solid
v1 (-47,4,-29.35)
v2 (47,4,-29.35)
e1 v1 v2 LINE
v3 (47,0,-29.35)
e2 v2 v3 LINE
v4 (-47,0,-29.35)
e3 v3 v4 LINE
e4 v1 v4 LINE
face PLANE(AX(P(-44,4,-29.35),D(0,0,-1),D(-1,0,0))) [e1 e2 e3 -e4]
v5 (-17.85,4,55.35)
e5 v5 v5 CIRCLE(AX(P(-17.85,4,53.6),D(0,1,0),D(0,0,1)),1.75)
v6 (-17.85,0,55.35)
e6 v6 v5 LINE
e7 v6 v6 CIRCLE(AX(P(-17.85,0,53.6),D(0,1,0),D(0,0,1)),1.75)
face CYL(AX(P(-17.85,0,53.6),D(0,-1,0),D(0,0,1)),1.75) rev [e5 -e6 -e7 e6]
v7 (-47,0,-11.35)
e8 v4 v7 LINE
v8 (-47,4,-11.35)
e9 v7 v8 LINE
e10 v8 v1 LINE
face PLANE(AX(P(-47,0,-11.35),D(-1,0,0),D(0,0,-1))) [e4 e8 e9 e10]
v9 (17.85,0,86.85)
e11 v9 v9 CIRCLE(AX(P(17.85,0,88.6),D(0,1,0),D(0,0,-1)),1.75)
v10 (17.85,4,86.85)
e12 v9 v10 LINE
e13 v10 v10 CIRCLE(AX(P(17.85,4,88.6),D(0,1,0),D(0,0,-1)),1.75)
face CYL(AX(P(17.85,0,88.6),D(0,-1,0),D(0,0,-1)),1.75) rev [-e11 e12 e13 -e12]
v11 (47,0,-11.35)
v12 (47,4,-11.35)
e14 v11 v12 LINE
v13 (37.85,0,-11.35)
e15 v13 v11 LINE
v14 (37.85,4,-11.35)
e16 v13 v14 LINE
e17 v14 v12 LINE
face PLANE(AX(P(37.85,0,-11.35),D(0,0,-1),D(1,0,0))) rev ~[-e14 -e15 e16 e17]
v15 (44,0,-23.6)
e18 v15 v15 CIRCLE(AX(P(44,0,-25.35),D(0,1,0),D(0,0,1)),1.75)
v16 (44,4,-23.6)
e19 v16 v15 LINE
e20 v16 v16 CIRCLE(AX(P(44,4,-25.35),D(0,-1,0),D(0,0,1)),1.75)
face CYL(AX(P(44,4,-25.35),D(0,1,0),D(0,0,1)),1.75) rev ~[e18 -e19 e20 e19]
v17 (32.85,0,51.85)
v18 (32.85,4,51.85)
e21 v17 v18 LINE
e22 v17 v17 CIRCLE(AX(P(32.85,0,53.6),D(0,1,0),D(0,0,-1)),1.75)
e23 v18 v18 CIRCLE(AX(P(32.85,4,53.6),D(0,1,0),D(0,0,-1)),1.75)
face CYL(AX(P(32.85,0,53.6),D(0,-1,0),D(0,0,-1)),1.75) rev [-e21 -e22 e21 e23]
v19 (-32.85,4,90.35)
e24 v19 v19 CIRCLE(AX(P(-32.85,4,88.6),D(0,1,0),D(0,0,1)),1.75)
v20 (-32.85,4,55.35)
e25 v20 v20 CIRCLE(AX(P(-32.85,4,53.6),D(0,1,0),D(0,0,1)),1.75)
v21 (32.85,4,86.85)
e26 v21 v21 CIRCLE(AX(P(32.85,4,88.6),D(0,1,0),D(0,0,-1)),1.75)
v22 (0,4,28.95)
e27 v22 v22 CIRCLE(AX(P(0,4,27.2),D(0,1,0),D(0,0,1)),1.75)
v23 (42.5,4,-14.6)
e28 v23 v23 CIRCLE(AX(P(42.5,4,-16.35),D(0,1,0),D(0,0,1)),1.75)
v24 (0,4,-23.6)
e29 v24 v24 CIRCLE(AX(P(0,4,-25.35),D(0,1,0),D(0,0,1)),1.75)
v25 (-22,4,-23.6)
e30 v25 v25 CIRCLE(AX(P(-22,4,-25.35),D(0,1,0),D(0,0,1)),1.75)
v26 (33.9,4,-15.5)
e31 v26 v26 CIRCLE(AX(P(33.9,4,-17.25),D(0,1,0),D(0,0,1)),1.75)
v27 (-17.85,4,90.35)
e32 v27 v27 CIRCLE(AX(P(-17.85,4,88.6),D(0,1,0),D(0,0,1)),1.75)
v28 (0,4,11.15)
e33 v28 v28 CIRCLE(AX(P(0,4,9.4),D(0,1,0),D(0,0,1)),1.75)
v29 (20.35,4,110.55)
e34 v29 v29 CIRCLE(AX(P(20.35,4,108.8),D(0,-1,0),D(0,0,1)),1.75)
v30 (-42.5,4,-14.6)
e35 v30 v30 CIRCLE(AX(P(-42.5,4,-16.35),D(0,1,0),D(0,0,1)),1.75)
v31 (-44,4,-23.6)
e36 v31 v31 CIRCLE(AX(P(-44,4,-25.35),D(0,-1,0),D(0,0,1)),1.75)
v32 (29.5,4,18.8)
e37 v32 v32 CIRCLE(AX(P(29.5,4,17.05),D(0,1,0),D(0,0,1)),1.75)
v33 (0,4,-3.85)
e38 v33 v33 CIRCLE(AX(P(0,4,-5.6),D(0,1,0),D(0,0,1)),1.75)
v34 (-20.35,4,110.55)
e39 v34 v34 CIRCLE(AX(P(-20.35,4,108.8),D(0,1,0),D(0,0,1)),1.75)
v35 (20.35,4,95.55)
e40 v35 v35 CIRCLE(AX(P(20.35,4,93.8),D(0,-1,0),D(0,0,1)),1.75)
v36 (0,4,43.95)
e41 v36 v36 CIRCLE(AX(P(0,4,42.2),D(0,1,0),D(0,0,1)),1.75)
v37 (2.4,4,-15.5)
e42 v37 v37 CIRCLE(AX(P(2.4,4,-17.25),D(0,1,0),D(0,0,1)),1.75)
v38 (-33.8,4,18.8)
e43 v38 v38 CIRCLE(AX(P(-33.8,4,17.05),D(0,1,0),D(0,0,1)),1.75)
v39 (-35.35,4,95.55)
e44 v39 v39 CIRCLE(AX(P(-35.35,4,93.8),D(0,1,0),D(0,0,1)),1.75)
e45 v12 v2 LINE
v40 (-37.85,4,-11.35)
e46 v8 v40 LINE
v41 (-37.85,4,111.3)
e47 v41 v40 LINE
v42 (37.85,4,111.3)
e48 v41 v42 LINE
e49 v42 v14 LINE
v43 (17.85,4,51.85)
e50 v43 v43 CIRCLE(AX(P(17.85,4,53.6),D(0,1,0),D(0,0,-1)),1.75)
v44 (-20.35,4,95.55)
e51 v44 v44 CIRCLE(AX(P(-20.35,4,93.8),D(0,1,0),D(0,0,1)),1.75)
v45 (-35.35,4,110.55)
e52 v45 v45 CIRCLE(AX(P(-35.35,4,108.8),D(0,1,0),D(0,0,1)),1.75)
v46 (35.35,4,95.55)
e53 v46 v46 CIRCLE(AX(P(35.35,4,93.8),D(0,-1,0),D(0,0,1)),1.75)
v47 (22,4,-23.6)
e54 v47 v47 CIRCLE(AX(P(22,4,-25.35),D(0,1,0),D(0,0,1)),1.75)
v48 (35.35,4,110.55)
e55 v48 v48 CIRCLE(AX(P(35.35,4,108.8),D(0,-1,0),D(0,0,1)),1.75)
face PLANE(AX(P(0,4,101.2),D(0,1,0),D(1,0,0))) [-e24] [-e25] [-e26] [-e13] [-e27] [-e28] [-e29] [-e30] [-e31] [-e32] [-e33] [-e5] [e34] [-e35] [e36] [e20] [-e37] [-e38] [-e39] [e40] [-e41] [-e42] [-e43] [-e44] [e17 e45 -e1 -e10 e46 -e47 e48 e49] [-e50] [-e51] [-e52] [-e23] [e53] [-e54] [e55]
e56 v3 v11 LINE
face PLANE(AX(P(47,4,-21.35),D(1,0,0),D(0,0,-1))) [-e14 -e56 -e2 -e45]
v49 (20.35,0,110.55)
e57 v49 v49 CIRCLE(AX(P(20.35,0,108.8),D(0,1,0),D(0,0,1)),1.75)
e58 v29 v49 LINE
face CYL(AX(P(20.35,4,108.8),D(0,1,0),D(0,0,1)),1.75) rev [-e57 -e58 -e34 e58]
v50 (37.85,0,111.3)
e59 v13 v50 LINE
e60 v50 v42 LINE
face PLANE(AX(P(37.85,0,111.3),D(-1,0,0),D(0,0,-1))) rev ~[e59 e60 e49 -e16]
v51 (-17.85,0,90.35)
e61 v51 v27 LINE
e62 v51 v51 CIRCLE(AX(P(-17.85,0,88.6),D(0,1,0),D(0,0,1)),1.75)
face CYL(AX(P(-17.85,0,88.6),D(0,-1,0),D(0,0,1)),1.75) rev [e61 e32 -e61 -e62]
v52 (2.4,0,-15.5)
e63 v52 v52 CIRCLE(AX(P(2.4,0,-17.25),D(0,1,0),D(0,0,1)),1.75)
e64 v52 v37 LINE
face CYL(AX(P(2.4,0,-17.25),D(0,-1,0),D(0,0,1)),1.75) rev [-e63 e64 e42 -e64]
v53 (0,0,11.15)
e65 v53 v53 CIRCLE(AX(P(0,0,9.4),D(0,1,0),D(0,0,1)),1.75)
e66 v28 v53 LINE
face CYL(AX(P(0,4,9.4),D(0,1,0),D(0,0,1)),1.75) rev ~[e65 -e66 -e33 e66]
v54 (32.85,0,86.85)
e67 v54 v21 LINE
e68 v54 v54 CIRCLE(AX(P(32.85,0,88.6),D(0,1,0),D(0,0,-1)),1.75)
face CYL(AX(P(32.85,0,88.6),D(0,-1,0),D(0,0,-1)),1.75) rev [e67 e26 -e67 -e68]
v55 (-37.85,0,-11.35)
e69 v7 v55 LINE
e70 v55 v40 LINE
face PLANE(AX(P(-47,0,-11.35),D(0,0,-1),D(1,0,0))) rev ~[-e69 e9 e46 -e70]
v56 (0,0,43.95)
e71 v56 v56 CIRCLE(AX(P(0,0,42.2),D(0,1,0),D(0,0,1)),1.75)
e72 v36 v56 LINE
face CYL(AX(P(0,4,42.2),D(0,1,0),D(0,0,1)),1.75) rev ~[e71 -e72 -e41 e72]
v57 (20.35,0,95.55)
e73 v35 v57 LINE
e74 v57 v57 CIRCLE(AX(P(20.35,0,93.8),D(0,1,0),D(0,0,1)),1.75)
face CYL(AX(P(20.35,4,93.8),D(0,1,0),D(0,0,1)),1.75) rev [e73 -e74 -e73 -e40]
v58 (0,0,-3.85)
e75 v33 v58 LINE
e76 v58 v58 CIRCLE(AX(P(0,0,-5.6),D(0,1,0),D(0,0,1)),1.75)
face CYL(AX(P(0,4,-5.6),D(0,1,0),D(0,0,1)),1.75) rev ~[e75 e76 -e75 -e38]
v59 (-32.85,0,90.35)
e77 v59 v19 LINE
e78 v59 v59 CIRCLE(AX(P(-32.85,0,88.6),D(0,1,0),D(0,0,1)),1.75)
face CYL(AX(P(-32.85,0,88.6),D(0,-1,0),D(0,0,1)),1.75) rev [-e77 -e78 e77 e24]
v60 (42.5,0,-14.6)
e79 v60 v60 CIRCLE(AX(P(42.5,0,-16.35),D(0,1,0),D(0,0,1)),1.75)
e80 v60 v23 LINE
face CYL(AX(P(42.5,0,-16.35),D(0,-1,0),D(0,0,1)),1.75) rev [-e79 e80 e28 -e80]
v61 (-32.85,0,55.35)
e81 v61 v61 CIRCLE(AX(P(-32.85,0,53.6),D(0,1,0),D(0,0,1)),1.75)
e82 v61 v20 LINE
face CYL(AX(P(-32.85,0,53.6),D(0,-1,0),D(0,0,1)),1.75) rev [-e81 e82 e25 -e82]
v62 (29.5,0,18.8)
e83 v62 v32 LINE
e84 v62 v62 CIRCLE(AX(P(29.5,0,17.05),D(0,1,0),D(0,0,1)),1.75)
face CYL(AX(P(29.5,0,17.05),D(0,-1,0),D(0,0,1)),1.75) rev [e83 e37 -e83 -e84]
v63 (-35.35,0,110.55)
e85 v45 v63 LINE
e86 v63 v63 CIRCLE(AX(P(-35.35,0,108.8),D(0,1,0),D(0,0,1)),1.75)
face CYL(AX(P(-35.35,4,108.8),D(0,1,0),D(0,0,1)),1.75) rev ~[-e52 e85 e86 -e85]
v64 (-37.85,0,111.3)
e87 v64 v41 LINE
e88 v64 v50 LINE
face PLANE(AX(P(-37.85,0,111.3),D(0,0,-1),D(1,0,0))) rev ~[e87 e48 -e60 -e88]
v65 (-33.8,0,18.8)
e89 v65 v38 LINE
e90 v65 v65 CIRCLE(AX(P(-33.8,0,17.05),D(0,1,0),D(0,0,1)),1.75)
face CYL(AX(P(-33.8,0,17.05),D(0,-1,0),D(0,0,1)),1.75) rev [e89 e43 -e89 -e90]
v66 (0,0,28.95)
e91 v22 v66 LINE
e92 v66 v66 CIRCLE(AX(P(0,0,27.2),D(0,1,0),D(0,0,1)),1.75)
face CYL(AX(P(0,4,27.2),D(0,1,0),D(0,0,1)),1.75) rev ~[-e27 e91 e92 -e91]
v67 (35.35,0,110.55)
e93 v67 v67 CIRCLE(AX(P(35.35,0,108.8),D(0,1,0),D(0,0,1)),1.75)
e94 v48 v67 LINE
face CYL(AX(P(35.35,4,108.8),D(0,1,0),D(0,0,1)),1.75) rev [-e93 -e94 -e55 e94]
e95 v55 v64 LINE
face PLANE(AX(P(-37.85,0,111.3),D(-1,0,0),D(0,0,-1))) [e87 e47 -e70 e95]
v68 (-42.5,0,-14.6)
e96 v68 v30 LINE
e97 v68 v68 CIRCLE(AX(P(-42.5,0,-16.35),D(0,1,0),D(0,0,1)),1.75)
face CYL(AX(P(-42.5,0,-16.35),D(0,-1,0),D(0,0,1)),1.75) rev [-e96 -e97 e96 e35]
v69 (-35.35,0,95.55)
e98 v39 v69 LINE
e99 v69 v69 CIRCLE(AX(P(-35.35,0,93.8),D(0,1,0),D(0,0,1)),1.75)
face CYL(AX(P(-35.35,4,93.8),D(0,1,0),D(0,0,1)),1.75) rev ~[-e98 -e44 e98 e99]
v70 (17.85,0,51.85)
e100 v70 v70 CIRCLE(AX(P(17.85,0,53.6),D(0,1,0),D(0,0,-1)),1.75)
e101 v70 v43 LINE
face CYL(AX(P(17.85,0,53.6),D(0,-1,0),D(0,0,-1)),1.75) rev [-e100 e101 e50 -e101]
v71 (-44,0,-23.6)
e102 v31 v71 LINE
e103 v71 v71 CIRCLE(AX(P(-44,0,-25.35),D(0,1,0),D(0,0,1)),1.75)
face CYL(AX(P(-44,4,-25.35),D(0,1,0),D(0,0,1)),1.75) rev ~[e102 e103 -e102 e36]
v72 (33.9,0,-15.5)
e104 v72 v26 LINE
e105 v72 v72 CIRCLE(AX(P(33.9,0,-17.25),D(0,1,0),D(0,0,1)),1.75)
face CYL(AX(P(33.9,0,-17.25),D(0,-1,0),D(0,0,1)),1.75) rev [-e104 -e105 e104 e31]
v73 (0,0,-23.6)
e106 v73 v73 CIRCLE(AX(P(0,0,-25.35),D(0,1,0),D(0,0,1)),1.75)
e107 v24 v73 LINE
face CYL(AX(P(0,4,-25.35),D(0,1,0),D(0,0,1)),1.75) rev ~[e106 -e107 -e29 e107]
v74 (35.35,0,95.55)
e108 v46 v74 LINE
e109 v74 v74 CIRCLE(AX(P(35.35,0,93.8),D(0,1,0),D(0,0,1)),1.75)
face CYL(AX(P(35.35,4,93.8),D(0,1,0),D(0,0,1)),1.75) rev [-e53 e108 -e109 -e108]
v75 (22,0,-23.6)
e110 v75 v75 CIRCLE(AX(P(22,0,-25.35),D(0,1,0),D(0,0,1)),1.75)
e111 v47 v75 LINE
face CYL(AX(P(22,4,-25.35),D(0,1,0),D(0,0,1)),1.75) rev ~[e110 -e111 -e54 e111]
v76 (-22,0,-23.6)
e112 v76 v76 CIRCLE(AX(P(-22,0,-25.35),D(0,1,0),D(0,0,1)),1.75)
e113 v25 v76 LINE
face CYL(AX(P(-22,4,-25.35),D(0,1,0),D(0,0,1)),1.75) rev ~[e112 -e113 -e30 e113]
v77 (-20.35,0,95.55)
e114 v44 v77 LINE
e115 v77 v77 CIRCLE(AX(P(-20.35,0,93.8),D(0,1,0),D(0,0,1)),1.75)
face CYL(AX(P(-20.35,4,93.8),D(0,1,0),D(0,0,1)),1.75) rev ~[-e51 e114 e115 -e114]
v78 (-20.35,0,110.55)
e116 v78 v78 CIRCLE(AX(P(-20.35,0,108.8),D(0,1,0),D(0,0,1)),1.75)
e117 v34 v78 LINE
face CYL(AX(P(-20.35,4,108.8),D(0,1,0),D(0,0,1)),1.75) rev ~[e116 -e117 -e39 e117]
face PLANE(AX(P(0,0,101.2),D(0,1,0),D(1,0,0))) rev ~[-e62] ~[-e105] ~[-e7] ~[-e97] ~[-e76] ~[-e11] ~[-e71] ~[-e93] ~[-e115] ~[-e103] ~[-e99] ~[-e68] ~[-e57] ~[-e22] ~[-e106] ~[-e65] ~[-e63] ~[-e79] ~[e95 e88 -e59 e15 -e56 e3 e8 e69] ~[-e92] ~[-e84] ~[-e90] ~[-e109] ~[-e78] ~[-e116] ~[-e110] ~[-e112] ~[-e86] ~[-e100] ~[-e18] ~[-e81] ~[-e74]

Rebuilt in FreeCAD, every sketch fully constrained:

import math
import FreeCAD as App
import Part
import Sketcher
from FreeCAD import Vector
Q = App.Units.Quantity

doc = App.newDocument("Part")
body = doc.addObject("PartDesign::Body", "Body")

sketch1 = body.newObject("Sketcher::SketchObject", "Sketch")
sketch1.AttachmentSupport = (doc.getObject("XZ_Plane"), [""])
sketch1.MapMode = "FlatFace"
sketch1.addGeometry(Part.LineSegment(Vector(-37.9, -21.4, 0), Vector(-37.9, 21.4, 0)), False)
sketch1.addGeometry(Part.LineSegment(Vector(-37.9, 21.4, 0), Vector(37.9, 21.4, 0)), False)
sketch1.addGeometry(Part.LineSegment(Vector(37.9, 21.4, 0), Vector(37.9, -21.4, 0)), False)
sketch1.addGeometry(Part.LineSegment(Vector(37.9, -21.4, 0), Vector(-37.9, -21.4, 0)), False)
sketch1.addGeometry(Part.Circle(Vector(-33.8, 17.1, 0), Vector(0, 0, 1), 1.8), False)
sketch1.addGeometry(Part.Circle(Vector(29.5, 17.1, 0), Vector(0, 0, 1), 1.8), False)
sketch1.addGeometry(Part.Circle(Vector(2.4, -17.2, 0), Vector(0, 0, 1), 1.8), False)
sketch1.addGeometry(Part.Circle(Vector(33.9, -17.2, 0), Vector(0, 0, 1), 1.8), False)
sketch1.addConstraint(Sketcher.Constraint("Coincident", 0, 2, 1, 1))
sketch1.addConstraint(Sketcher.Constraint("Coincident", 1, 2, 2, 1))
sketch1.addConstraint(Sketcher.Constraint("Coincident", 2, 2, 3, 1))
sketch1.addConstraint(Sketcher.Constraint("Coincident", 3, 2, 0, 1))
sketch1.addConstraint(Sketcher.Constraint("Vertical", 0))
sketch1.addConstraint(Sketcher.Constraint("Horizontal", 1))
sketch1.addConstraint(Sketcher.Constraint("Vertical", 2))
sketch1.addConstraint(Sketcher.Constraint("Horizontal", 3))
sketch1.addConstraint(Sketcher.Constraint("Equal", 4, 5))
sketch1.addConstraint(Sketcher.Constraint("Equal", 5, 6))
sketch1.addConstraint(Sketcher.Constraint("Equal", 6, 7))
sketch1.addConstraint(Sketcher.Constraint("Symmetric", 0, 2, 2, 2, -1, 1))
sketch1.addConstraint(Sketcher.Constraint("Horizontal", 4, 3, 5, 3))
sketch1.addConstraint(Sketcher.Constraint("Horizontal", 6, 3, 7, 3))
sketch1.addConstraint(Sketcher.Constraint("Diameter", 4, Q("3.5 mm")))
sketch1.addConstraint(Sketcher.Constraint("DistanceX", 1, 1, 1, 2, Q("75.7 mm")))
sketch1.addConstraint(Sketcher.Constraint("DistanceY", 0, 1, 0, 2, Q("42.7 mm")))
sketch1.addConstraint(Sketcher.Constraint("DistanceX", 4, 3, -1, 1, Q("33.8 mm")))
sketch1.addConstraint(Sketcher.Constraint("DistanceX", -1, 1, 5, 3, Q("29.5 mm")))
sketch1.addConstraint(Sketcher.Constraint("DistanceX", -1, 1, 6, 3, Q("2.4 mm")))
sketch1.addConstraint(Sketcher.Constraint("DistanceX", -1, 1, 7, 3, Q("33.9 mm")))
sketch1.addConstraint(Sketcher.Constraint("DistanceY", 6, 3, 5, 3, Q("34.3 mm")))
sketch1.addConstraint(Sketcher.Constraint("DistanceY", 4, 3, 0, 2, Q("4.3 mm")))
pad1 = body.newObject("PartDesign::Pad", "Pad")
pad1.Profile = sketch1
pad1.Length = 4
pad1.Reversed = True

sketch2 = body.newObject("Sketcher::SketchObject", "Sketch001")
sketch2.AttachmentSupport = (doc.getObject("XZ_Plane"), [""])
sketch2.MapMode = "FlatFace"
sketch2.AttachmentOffset = App.Placement(Vector(0, 0, -4), App.Rotation())
sketch2.addGeometry(Part.LineSegment(Vector(-37.9, 21.4, 0), Vector(-37.9, 51.1, 0)), False)
sketch2.addGeometry(Part.LineSegment(Vector(-37.9, 51.1, 0), Vector(37.9, 51.1, 0)), False)
sketch2.addGeometry(Part.LineSegment(Vector(37.9, 51.1, 0), Vector(37.9, 21.4, 0)), False)
sketch2.addGeometry(Part.LineSegment(Vector(37.9, 21.4, 0), Vector(-37.9, 21.4, 0)), False)
sketch2.addGeometry(Part.Circle(Vector(0, 42.2, 0), Vector(0, 0, 1), 1.8), False)
sketch2.addGeometry(Part.Circle(Vector(0, 27.2, 0), Vector(0, 0, 1), 1.8), False)
sketch2.addConstraint(Sketcher.Constraint("Coincident", 0, 2, 1, 1))
sketch2.addConstraint(Sketcher.Constraint("Coincident", 1, 2, 2, 1))
sketch2.addConstraint(Sketcher.Constraint("Coincident", 2, 2, 3, 1))
sketch2.addConstraint(Sketcher.Constraint("Coincident", 3, 2, 0, 1))
sketch2.addConstraint(Sketcher.Constraint("Vertical", 0))
sketch2.addConstraint(Sketcher.Constraint("Horizontal", 1))
sketch2.addConstraint(Sketcher.Constraint("Vertical", 2))
sketch2.addConstraint(Sketcher.Constraint("Horizontal", 3))
sketch2.addConstraint(Sketcher.Constraint("Equal", 4, 5))
sketch2.addConstraint(Sketcher.Constraint("PointOnObject", 4, 3, -2))
sketch2.addConstraint(Sketcher.Constraint("PointOnObject", 5, 3, -2))
sketch2.addConstraint(Sketcher.Constraint("Diameter", 4, Q("3.5 mm")))
sketch2.addConstraint(Sketcher.Constraint("DistanceX", 1, 1, 1, 2, Q("75.7 mm")))
sketch2.addConstraint(Sketcher.Constraint("DistanceY", 5, 3, 4, 3, Q("15 mm")))
sketch2.addConstraint(Sketcher.Constraint("DistanceY", 0, 1, 0, 2, Q("29.75 mm")))
sketch2.addConstraint(Sketcher.Constraint("DistanceY", -1, 1, 4, 3, Q("42.2 mm")))
sketch2.addConstraint(Sketcher.Constraint("DistanceY", -1, 1, 0, 2, Q("51.1 mm")))
sketch2.addConstraint(Sketcher.Constraint("DistanceX", 0, 2, -1, 1, Q("37.85 mm")))
pad2 = body.newObject("PartDesign::Pad", "Pad001")
pad2.Profile = sketch2
pad2.Length = 4

sketch3 = body.newObject("Sketcher::SketchObject", "Sketch002")
sketch3.AttachmentSupport = (doc.getObject("XZ_Plane"), [""])
sketch3.MapMode = "FlatFace"
sketch3.AttachmentOffset = App.Placement(Vector(0, 0, -4), App.Rotation())
sketch3.addGeometry(Part.Circle(Vector(0, -5.6, 0), Vector(0, 0, 1), 1.8), False)
sketch3.addGeometry(Part.Circle(Vector(0, 9.4, 0), Vector(0, 0, 1), 1.8), False)
sketch3.addConstraint(Sketcher.Constraint("Equal", 0, 1))
sketch3.addConstraint(Sketcher.Constraint("PointOnObject", 0, 3, -2))
sketch3.addConstraint(Sketcher.Constraint("PointOnObject", 1, 3, -2))
sketch3.addConstraint(Sketcher.Constraint("Diameter", 0, Q("3.5 mm")))
sketch3.addConstraint(Sketcher.Constraint("DistanceY", 0, 3, 1, 3, Q("15 mm")))
sketch3.addConstraint(Sketcher.Constraint("DistanceY", 0, 3, -1, 1, Q("5.6 mm")))
pocket1 = body.newObject("PartDesign::Pocket", "Pocket")
pocket1.Profile = sketch3
pocket1.Length = 4
pocket1.Reversed = True

sketch4 = body.newObject("Sketcher::SketchObject", "Sketch003")
sketch4.AttachmentSupport = (doc.getObject("XZ_Plane"), [""])
sketch4.MapMode = "FlatFace"
sketch4.addGeometry(Part.LineSegment(Vector(-37.9, 51.1, 0), Vector(-37.9, 91.1, 0)), False)
sketch4.addGeometry(Part.LineSegment(Vector(-37.9, 91.1, 0), Vector(37.9, 91.1, 0)), False)
sketch4.addGeometry(Part.LineSegment(Vector(37.9, 91.1, 0), Vector(37.9, 51.1, 0)), False)
sketch4.addGeometry(Part.LineSegment(Vector(37.9, 51.1, 0), Vector(-37.9, 51.1, 0)), False)
sketch4.addGeometry(Part.Circle(Vector(-32.9, 88.6, 0), Vector(0, 0, 1), 1.8), False)
sketch4.addGeometry(Part.Circle(Vector(-17.9, 88.6, 0), Vector(0, 0, 1), 1.8), False)
sketch4.addGeometry(Part.Circle(Vector(17.9, 88.6, 0), Vector(0, 0, 1), 1.8), False)
sketch4.addGeometry(Part.Circle(Vector(32.9, 88.6, 0), Vector(0, 0, 1), 1.8), False)
sketch4.addGeometry(Part.Circle(Vector(-32.9, 53.6, 0), Vector(0, 0, 1), 1.8), False)
sketch4.addGeometry(Part.Circle(Vector(-17.9, 53.6, 0), Vector(0, 0, 1), 1.8), False)
sketch4.addGeometry(Part.Circle(Vector(17.9, 53.6, 0), Vector(0, 0, 1), 1.8), False)
sketch4.addGeometry(Part.Circle(Vector(32.9, 53.6, 0), Vector(0, 0, 1), 1.8), False)
sketch4.addGeometry(Part.LineSegment(Vector(-44, -21.4, 0), Vector(44, -21.4, 0)), False)
sketch4.addGeometry(Part.LineSegment(Vector(44, -21.4, 0), Vector(44, -29.4, 0)), False)
sketch4.addGeometry(Part.LineSegment(Vector(44, -29.4, 0), Vector(-44, -29.4, 0)), False)
sketch4.addGeometry(Part.LineSegment(Vector(-44, -29.4, 0), Vector(-44, -21.4, 0)), False)
sketch4.addConstraint(Sketcher.Constraint("Coincident", 0, 2, 1, 1))
sketch4.addConstraint(Sketcher.Constraint("Coincident", 1, 2, 2, 1))
sketch4.addConstraint(Sketcher.Constraint("Coincident", 2, 2, 3, 1))
sketch4.addConstraint(Sketcher.Constraint("Coincident", 3, 2, 0, 1))
sketch4.addConstraint(Sketcher.Constraint("Coincident", 12, 2, 13, 1))
sketch4.addConstraint(Sketcher.Constraint("Coincident", 13, 2, 14, 1))
sketch4.addConstraint(Sketcher.Constraint("Coincident", 14, 2, 15, 1))
sketch4.addConstraint(Sketcher.Constraint("Coincident", 15, 2, 12, 1))
sketch4.addConstraint(Sketcher.Constraint("Vertical", 0))
sketch4.addConstraint(Sketcher.Constraint("Horizontal", 1))
sketch4.addConstraint(Sketcher.Constraint("Vertical", 2))
sketch4.addConstraint(Sketcher.Constraint("Horizontal", 3))
sketch4.addConstraint(Sketcher.Constraint("Horizontal", 12))
sketch4.addConstraint(Sketcher.Constraint("Vertical", 13))
sketch4.addConstraint(Sketcher.Constraint("Horizontal", 14))
sketch4.addConstraint(Sketcher.Constraint("Vertical", 15))
sketch4.addConstraint(Sketcher.Constraint("Equal", 4, 5))
sketch4.addConstraint(Sketcher.Constraint("Equal", 5, 6))
sketch4.addConstraint(Sketcher.Constraint("Equal", 6, 7))
sketch4.addConstraint(Sketcher.Constraint("Equal", 7, 8))
sketch4.addConstraint(Sketcher.Constraint("Equal", 8, 9))
sketch4.addConstraint(Sketcher.Constraint("Equal", 9, 10))
sketch4.addConstraint(Sketcher.Constraint("Equal", 10, 11))
sketch4.addConstraint(Sketcher.Constraint("Symmetric", 5, 3, 6, 3, -2))
sketch4.addConstraint(Sketcher.Constraint("Symmetric", 4, 3, 7, 3, -2))
sketch4.addConstraint(Sketcher.Constraint("Symmetric", 9, 3, 10, 3, -2))
sketch4.addConstraint(Sketcher.Constraint("Symmetric", 8, 3, 11, 3, -2))
sketch4.addConstraint(Sketcher.Constraint("Horizontal", 4, 3, 5, 3))
sketch4.addConstraint(Sketcher.Constraint("Horizontal", 8, 3, 9, 3))
sketch4.addConstraint(Sketcher.Constraint("Vertical", 4, 3, 8, 3))
sketch4.addConstraint(Sketcher.Constraint("Vertical", 5, 3, 9, 3))
sketch4.addConstraint(Sketcher.Constraint("Diameter", 4, Q("3.5 mm")))
sketch4.addConstraint(Sketcher.Constraint("DistanceX", 12, 1, 12, 2, Q("88 mm")))
sketch4.addConstraint(Sketcher.Constraint("DistanceY", 0, 1, 0, 2, Q("40 mm")))
sketch4.addConstraint(Sketcher.Constraint("DistanceY", 13, 2, 13, 1, Q("8 mm")))
sketch4.addConstraint(Sketcher.Constraint("DistanceX", 1, 1, 1, 2, Q("75.7 mm")))
sketch4.addConstraint(Sketcher.Constraint("DistanceX", -1, 1, 12, 2, Q("44 mm")))
sketch4.addConstraint(Sketcher.Constraint("DistanceX", 4, 3, 5, 3, Q("15 mm")))
sketch4.addConstraint(Sketcher.Constraint("DistanceY", 8, 3, 4, 3, Q("35 mm")))
sketch4.addConstraint(Sketcher.Constraint("DistanceX", 0, 2, 4, 3, Q("5 mm")))
sketch4.addConstraint(Sketcher.Constraint("DistanceX", 7, 3, 1, 2, Q("5 mm")))
sketch4.addConstraint(Sketcher.Constraint("DistanceY", -1, 1, 4, 3, Q("88.6 mm")))
sketch4.addConstraint(Sketcher.Constraint("DistanceY", -1, 1, 0, 2, Q("91.1 mm")))
sketch4.addConstraint(Sketcher.Constraint("DistanceY", 12, 2, -1, 1, Q("21.35 mm")))
pad3 = body.newObject("PartDesign::Pad", "Pad002")
pad3.Profile = sketch4
pad3.Length = 4
pad3.Reversed = True

sketch5 = body.newObject("Sketcher::SketchObject", "Sketch004")
sketch5.AttachmentSupport = (doc.getObject("XZ_Plane"), [""])
sketch5.MapMode = "FlatFace"
sketch5.AttachmentOffset = App.Placement(Vector(0, 0, -4), App.Rotation())
sketch5.addGeometry(Part.LineSegment(Vector(-44, -27.1, 0), Vector(-44, -29.4, 0)), False)
sketch5.addGeometry(Part.LineSegment(Vector(-44, -29.4, 0), Vector(-47, -29.4, 0)), False)
sketch5.addGeometry(Part.LineSegment(Vector(-47, -29.4, 0), Vector(-47, -21.4, 0)), False)
sketch5.addGeometry(Part.LineSegment(Vector(-47, -21.4, 0), Vector(-44, -21.4, 0)), False)
sketch5.addGeometry(Part.LineSegment(Vector(-44, -21.4, 0), Vector(-44, -23.6, 0)), False)
sketch5.addGeometry(Part.ArcOfCircle(Part.Circle(Vector(-44, -25.4, 0), Vector(0, 0, 1), 1.8), math.radians(90), math.radians(270)), False)
sketch5.addGeometry(Part.LineSegment(Vector(47, -29.4, 0), Vector(44, -29.4, 0)), False)
sketch5.addGeometry(Part.LineSegment(Vector(44, -29.4, 0), Vector(44, -27.1, 0)), False)
sketch5.addGeometry(Part.ArcOfCircle(Part.Circle(Vector(44, -25.4, 0), Vector(0, 0, 1), 1.8), math.radians(-90), math.radians(90)), False)
sketch5.addGeometry(Part.LineSegment(Vector(44, -23.6, 0), Vector(44, -21.4, 0)), False)
sketch5.addGeometry(Part.LineSegment(Vector(44, -21.4, 0), Vector(47, -21.4, 0)), False)
sketch5.addGeometry(Part.LineSegment(Vector(47, -21.4, 0), Vector(47, -29.4, 0)), False)
sketch5.addConstraint(Sketcher.Constraint("Coincident", 0, 2, 1, 1))
sketch5.addConstraint(Sketcher.Constraint("Coincident", 1, 2, 2, 1))
sketch5.addConstraint(Sketcher.Constraint("Coincident", 2, 2, 3, 1))
sketch5.addConstraint(Sketcher.Constraint("Coincident", 3, 2, 4, 1))
sketch5.addConstraint(Sketcher.Constraint("Coincident", 4, 2, 5, 1))
sketch5.addConstraint(Sketcher.Constraint("Coincident", 5, 2, 0, 1))
sketch5.addConstraint(Sketcher.Constraint("Coincident", 6, 2, 7, 1))
sketch5.addConstraint(Sketcher.Constraint("Coincident", 7, 2, 8, 1))
sketch5.addConstraint(Sketcher.Constraint("Coincident", 8, 2, 9, 1))
sketch5.addConstraint(Sketcher.Constraint("Coincident", 9, 2, 10, 1))
sketch5.addConstraint(Sketcher.Constraint("Coincident", 10, 2, 11, 1))
sketch5.addConstraint(Sketcher.Constraint("Coincident", 11, 2, 6, 1))
sketch5.addConstraint(Sketcher.Constraint("Vertical", 0))
sketch5.addConstraint(Sketcher.Constraint("Horizontal", 1))
sketch5.addConstraint(Sketcher.Constraint("Vertical", 2))
sketch5.addConstraint(Sketcher.Constraint("Horizontal", 3))
sketch5.addConstraint(Sketcher.Constraint("Vertical", 4))
sketch5.addConstraint(Sketcher.Constraint("Horizontal", 6))
sketch5.addConstraint(Sketcher.Constraint("Vertical", 7))
sketch5.addConstraint(Sketcher.Constraint("Vertical", 9))
sketch5.addConstraint(Sketcher.Constraint("Horizontal", 10))
sketch5.addConstraint(Sketcher.Constraint("Vertical", 11))
sketch5.addConstraint(Sketcher.Constraint("Equal", 5, 8))
sketch5.addConstraint(Sketcher.Constraint("Symmetric", 5, 3, 8, 3, -2))
sketch5.addConstraint(Sketcher.Constraint("Symmetric", 0, 2, 6, 2, -2))
sketch5.addConstraint(Sketcher.Constraint("Symmetric", 3, 2, 9, 2, -2))
sketch5.addConstraint(Sketcher.Constraint("Vertical", 5, 3, 0, 2))
sketch5.addConstraint(Sketcher.Constraint("Vertical", 0, 2, 3, 2))
sketch5.addConstraint(Sketcher.Constraint("Equal", 3, 6))
sketch5.addConstraint(Sketcher.Constraint("Equal", 0, 4))
sketch5.addConstraint(Sketcher.Constraint("DistanceX", 1, 2, 1, 1, Q("3 mm")))
sketch5.addConstraint(Sketcher.Constraint("DistanceY", 2, 1, 2, 2, Q("8 mm")))
sketch5.addConstraint(Sketcher.Constraint("Radius", 5, Q("1.75 mm")))
sketch5.addConstraint(Sketcher.Constraint("DistanceX", 5, 3, -1, 1, Q("44 mm")))
sketch5.addConstraint(Sketcher.Constraint("DistanceY", 4, 2, -1, 1, Q("23.6 mm")))
pad4 = body.newObject("PartDesign::Pad", "Pad003")
pad4.Profile = sketch5
pad4.Length = 4

sketch6 = body.newObject("Sketcher::SketchObject", "Sketch005")
sketch6.AttachmentSupport = (doc.getObject("XZ_Plane"), [""])
sketch6.MapMode = "FlatFace"
sketch6.AttachmentOffset = App.Placement(Vector(0, 0, -4), App.Rotation())
sketch6.addGeometry(Part.Circle(Vector(0, -25.4, 0), Vector(0, 0, 1), 1.8), False)
sketch6.addGeometry(Part.Circle(Vector(22, -25.4, 0), Vector(0, 0, 1), 1.8), False)
sketch6.addGeometry(Part.Circle(Vector(44, -25.4, 0), Vector(0, 0, 1), 1.8), False)
sketch6.addGeometry(Part.Circle(Vector(-22, -25.4, 0), Vector(0, 0, 1), 1.8), False)
sketch6.addGeometry(Part.Circle(Vector(-44, -25.4, 0), Vector(0, 0, 1), 1.8), False)
sketch6.addConstraint(Sketcher.Constraint("Equal", 0, 1))
sketch6.addConstraint(Sketcher.Constraint("Equal", 1, 2))
sketch6.addConstraint(Sketcher.Constraint("Equal", 2, 3))
sketch6.addConstraint(Sketcher.Constraint("Equal", 3, 4))
sketch6.addConstraint(Sketcher.Constraint("Symmetric", 1, 3, 3, 3, -2))
sketch6.addConstraint(Sketcher.Constraint("Symmetric", 2, 3, 4, 3, -2))
sketch6.addConstraint(Sketcher.Constraint("PointOnObject", 0, 3, -2))
sketch6.addConstraint(Sketcher.Constraint("Horizontal", 0, 3, 1, 3))
sketch6.addConstraint(Sketcher.Constraint("Horizontal", 1, 3, 2, 3))
sketch6.addConstraint(Sketcher.Constraint("Diameter", 0, Q("3.5 mm")))
sketch6.addConstraint(Sketcher.Constraint("DistanceX", -1, 1, 1, 3, Q("22 mm")))
sketch6.addConstraint(Sketcher.Constraint("DistanceX", -1, 1, 2, 3, Q("44 mm")))
sketch6.addConstraint(Sketcher.Constraint("DistanceY", 0, 3, -1, 1, Q("25.35 mm")))
pocket2 = body.newObject("PartDesign::Pocket", "Pocket001")
pocket2.Profile = sketch6
pocket2.Type = "ThroughAll"
pocket2.Reversed = True

sketch7 = body.newObject("Sketcher::SketchObject", "Sketch006")
sketch7.AttachmentSupport = (doc.getObject("XZ_Plane"), [""])
sketch7.MapMode = "FlatFace"
sketch7.addGeometry(Part.LineSegment(Vector(-47, -21.4, 0), Vector(-47, -11.3, 0)), False)
sketch7.addGeometry(Part.LineSegment(Vector(-47, -11.3, 0), Vector(-37.9, -11.3, 0)), False)
sketch7.addGeometry(Part.LineSegment(Vector(-37.9, -11.3, 0), Vector(-37.9, -21.4, 0)), False)
sketch7.addGeometry(Part.LineSegment(Vector(-37.9, -21.4, 0), Vector(-47, -21.4, 0)), False)
sketch7.addGeometry(Part.Circle(Vector(-42.5, -16.4, 0), Vector(0, 0, 1), 1.8), False)
sketch7.addGeometry(Part.LineSegment(Vector(37.9, -21.4, 0), Vector(37.9, -11.3, 0)), False)
sketch7.addGeometry(Part.LineSegment(Vector(37.9, -11.3, 0), Vector(47, -11.3, 0)), False)
sketch7.addGeometry(Part.LineSegment(Vector(47, -11.3, 0), Vector(47, -21.4, 0)), False)
sketch7.addGeometry(Part.LineSegment(Vector(47, -21.4, 0), Vector(37.9, -21.4, 0)), False)
sketch7.addGeometry(Part.Circle(Vector(42.5, -16.4, 0), Vector(0, 0, 1), 1.8), False)
sketch7.addConstraint(Sketcher.Constraint("Coincident", 0, 2, 1, 1))
sketch7.addConstraint(Sketcher.Constraint("Coincident", 1, 2, 2, 1))
sketch7.addConstraint(Sketcher.Constraint("Coincident", 2, 2, 3, 1))
sketch7.addConstraint(Sketcher.Constraint("Coincident", 3, 2, 0, 1))
sketch7.addConstraint(Sketcher.Constraint("Coincident", 5, 2, 6, 1))
sketch7.addConstraint(Sketcher.Constraint("Coincident", 6, 2, 7, 1))
sketch7.addConstraint(Sketcher.Constraint("Coincident", 7, 2, 8, 1))
sketch7.addConstraint(Sketcher.Constraint("Coincident", 8, 2, 5, 1))
sketch7.addConstraint(Sketcher.Constraint("Vertical", 0))
sketch7.addConstraint(Sketcher.Constraint("Horizontal", 1))
sketch7.addConstraint(Sketcher.Constraint("Vertical", 2))
sketch7.addConstraint(Sketcher.Constraint("Horizontal", 3))
sketch7.addConstraint(Sketcher.Constraint("Vertical", 5))
sketch7.addConstraint(Sketcher.Constraint("Horizontal", 6))
sketch7.addConstraint(Sketcher.Constraint("Vertical", 7))
sketch7.addConstraint(Sketcher.Constraint("Horizontal", 8))
sketch7.addConstraint(Sketcher.Constraint("Equal", 4, 9))
sketch7.addConstraint(Sketcher.Constraint("Symmetric", 4, 3, 9, 3, -2))
sketch7.addConstraint(Sketcher.Constraint("Symmetric", 1, 2, 5, 2, -2))
sketch7.addConstraint(Sketcher.Constraint("Symmetric", 3, 2, 7, 2, -2))
sketch7.addConstraint(Sketcher.Constraint("Diameter", 4, Q("3.5 mm")))
sketch7.addConstraint(Sketcher.Constraint("DistanceY", 0, 1, 0, 2, Q("10 mm")))
sketch7.addConstraint(Sketcher.Constraint("DistanceX", 0, 2, -1, 1, Q("47 mm")))
sketch7.addConstraint(Sketcher.Constraint("DistanceX", 4, 3, 9, 3, Q("85 mm")))
sketch7.addConstraint(Sketcher.Constraint("DistanceY", 4, 3, 0, 2, Q("5 mm")))
sketch7.addConstraint(Sketcher.Constraint("DistanceX", 1, 1, 1, 2, Q("9.15 mm")))
sketch7.addConstraint(Sketcher.Constraint("DistanceY", 4, 3, -1, 1, Q("16.35 mm")))
pad5 = body.newObject("PartDesign::Pad", "Pad004")
pad5.Profile = sketch7
pad5.Length = 4
pad5.Reversed = True

sketch8 = body.newObject("Sketcher::SketchObject", "Sketch007")
sketch8.AttachmentSupport = (doc.getObject("XZ_Plane"), [""])
sketch8.MapMode = "FlatFace"
sketch8.addGeometry(Part.LineSegment(Vector(-38, 91, 0), Vector(-38, 111, 0)), False)
sketch8.addGeometry(Part.LineSegment(Vector(-38, 111, 0), Vector(38, 111, 0)), False)
sketch8.addGeometry(Part.LineSegment(Vector(38, 111, 0), Vector(38, 91, 0)), False)
sketch8.addGeometry(Part.LineSegment(Vector(38, 91, 0), Vector(-38, 91, 0)), False)
sketch8.addConstraint(Sketcher.Constraint("Coincident", 0, 2, 1, 1))
sketch8.addConstraint(Sketcher.Constraint("Coincident", 1, 2, 2, 1))
sketch8.addConstraint(Sketcher.Constraint("Coincident", 2, 2, 3, 1))
sketch8.addConstraint(Sketcher.Constraint("Coincident", 3, 2, 0, 1))
sketch8.addConstraint(Sketcher.Constraint("Vertical", 0))
sketch8.addConstraint(Sketcher.Constraint("Horizontal", 1))
sketch8.addConstraint(Sketcher.Constraint("Vertical", 2))
sketch8.addConstraint(Sketcher.Constraint("Horizontal", 3))
sketch8.addConstraint(Sketcher.Constraint("DistanceX", 1, 1, 1, 2, Q("75.7 mm")))
sketch8.addConstraint(Sketcher.Constraint("DistanceY", 0, 1, 0, 2, Q("20.2 mm")))
sketch8.addConstraint(Sketcher.Constraint("DistanceY", -1, 1, 0, 2, Q("111.3 mm")))
sketch8.addConstraint(Sketcher.Constraint("DistanceX", 0, 2, -1, 1, Q("37.85 mm")))
pad6 = body.newObject("PartDesign::Pad", "Pad005")
pad6.Profile = sketch8
pad6.Length = 4
pad6.Reversed = True

sketch9 = body.newObject("Sketcher::SketchObject", "Sketch008")
sketch9.AttachmentSupport = (doc.getObject("XZ_Plane"), [""])
sketch9.MapMode = "FlatFace"
sketch9.AttachmentOffset = App.Placement(Vector(0, 0, -4), App.Rotation())
sketch9.addGeometry(Part.Circle(Vector(-35.4, 93.8, 0), Vector(0, 0, 1), 1.8), False)
sketch9.addGeometry(Part.Circle(Vector(-20.4, 93.8, 0), Vector(0, 0, 1), 1.8), False)
sketch9.addGeometry(Part.Circle(Vector(-20.4, 108.8, 0), Vector(0, 0, 1), 1.8), False)
sketch9.addGeometry(Part.Circle(Vector(-35.4, 108.8, 0), Vector(0, 0, 1), 1.8), False)
sketch9.addConstraint(Sketcher.Constraint("Equal", 0, 1))
sketch9.addConstraint(Sketcher.Constraint("Equal", 1, 2))
sketch9.addConstraint(Sketcher.Constraint("Equal", 2, 3))
sketch9.addConstraint(Sketcher.Constraint("Horizontal", 0, 3, 1, 3))
sketch9.addConstraint(Sketcher.Constraint("Horizontal", 2, 3, 3, 3))
sketch9.addConstraint(Sketcher.Constraint("Vertical", 1, 3, 2, 3))
sketch9.addConstraint(Sketcher.Constraint("Vertical", 0, 3, 3, 3))
sketch9.addConstraint(Sketcher.Constraint("Diameter", 0, Q("3.5 mm")))
sketch9.addConstraint(Sketcher.Constraint("DistanceX", 0, 3, 1, 3, Q("15 mm")))
sketch9.addConstraint(Sketcher.Constraint("DistanceY", 1, 3, 2, 3, Q("15 mm")))
sketch9.addConstraint(Sketcher.Constraint("DistanceY", -1, 1, 0, 3, Q("93.8 mm")))
sketch9.addConstraint(Sketcher.Constraint("DistanceX", 0, 3, -1, 1, Q("35.35 mm")))
pocket3 = body.newObject("PartDesign::Pocket", "Pocket002")
pocket3.Profile = sketch9
pocket3.Type = "ThroughAll"
pocket3.Reversed = True
doc.recompute()

mirrored = body.newObject("PartDesign::Mirrored", "Mirrored")
mirrored.Originals = [pocket3]
mirrored.MirrorPlane = (doc.getObject("YZ_Plane"), [""])
body.Tip = mirrored

doc.recompute()
